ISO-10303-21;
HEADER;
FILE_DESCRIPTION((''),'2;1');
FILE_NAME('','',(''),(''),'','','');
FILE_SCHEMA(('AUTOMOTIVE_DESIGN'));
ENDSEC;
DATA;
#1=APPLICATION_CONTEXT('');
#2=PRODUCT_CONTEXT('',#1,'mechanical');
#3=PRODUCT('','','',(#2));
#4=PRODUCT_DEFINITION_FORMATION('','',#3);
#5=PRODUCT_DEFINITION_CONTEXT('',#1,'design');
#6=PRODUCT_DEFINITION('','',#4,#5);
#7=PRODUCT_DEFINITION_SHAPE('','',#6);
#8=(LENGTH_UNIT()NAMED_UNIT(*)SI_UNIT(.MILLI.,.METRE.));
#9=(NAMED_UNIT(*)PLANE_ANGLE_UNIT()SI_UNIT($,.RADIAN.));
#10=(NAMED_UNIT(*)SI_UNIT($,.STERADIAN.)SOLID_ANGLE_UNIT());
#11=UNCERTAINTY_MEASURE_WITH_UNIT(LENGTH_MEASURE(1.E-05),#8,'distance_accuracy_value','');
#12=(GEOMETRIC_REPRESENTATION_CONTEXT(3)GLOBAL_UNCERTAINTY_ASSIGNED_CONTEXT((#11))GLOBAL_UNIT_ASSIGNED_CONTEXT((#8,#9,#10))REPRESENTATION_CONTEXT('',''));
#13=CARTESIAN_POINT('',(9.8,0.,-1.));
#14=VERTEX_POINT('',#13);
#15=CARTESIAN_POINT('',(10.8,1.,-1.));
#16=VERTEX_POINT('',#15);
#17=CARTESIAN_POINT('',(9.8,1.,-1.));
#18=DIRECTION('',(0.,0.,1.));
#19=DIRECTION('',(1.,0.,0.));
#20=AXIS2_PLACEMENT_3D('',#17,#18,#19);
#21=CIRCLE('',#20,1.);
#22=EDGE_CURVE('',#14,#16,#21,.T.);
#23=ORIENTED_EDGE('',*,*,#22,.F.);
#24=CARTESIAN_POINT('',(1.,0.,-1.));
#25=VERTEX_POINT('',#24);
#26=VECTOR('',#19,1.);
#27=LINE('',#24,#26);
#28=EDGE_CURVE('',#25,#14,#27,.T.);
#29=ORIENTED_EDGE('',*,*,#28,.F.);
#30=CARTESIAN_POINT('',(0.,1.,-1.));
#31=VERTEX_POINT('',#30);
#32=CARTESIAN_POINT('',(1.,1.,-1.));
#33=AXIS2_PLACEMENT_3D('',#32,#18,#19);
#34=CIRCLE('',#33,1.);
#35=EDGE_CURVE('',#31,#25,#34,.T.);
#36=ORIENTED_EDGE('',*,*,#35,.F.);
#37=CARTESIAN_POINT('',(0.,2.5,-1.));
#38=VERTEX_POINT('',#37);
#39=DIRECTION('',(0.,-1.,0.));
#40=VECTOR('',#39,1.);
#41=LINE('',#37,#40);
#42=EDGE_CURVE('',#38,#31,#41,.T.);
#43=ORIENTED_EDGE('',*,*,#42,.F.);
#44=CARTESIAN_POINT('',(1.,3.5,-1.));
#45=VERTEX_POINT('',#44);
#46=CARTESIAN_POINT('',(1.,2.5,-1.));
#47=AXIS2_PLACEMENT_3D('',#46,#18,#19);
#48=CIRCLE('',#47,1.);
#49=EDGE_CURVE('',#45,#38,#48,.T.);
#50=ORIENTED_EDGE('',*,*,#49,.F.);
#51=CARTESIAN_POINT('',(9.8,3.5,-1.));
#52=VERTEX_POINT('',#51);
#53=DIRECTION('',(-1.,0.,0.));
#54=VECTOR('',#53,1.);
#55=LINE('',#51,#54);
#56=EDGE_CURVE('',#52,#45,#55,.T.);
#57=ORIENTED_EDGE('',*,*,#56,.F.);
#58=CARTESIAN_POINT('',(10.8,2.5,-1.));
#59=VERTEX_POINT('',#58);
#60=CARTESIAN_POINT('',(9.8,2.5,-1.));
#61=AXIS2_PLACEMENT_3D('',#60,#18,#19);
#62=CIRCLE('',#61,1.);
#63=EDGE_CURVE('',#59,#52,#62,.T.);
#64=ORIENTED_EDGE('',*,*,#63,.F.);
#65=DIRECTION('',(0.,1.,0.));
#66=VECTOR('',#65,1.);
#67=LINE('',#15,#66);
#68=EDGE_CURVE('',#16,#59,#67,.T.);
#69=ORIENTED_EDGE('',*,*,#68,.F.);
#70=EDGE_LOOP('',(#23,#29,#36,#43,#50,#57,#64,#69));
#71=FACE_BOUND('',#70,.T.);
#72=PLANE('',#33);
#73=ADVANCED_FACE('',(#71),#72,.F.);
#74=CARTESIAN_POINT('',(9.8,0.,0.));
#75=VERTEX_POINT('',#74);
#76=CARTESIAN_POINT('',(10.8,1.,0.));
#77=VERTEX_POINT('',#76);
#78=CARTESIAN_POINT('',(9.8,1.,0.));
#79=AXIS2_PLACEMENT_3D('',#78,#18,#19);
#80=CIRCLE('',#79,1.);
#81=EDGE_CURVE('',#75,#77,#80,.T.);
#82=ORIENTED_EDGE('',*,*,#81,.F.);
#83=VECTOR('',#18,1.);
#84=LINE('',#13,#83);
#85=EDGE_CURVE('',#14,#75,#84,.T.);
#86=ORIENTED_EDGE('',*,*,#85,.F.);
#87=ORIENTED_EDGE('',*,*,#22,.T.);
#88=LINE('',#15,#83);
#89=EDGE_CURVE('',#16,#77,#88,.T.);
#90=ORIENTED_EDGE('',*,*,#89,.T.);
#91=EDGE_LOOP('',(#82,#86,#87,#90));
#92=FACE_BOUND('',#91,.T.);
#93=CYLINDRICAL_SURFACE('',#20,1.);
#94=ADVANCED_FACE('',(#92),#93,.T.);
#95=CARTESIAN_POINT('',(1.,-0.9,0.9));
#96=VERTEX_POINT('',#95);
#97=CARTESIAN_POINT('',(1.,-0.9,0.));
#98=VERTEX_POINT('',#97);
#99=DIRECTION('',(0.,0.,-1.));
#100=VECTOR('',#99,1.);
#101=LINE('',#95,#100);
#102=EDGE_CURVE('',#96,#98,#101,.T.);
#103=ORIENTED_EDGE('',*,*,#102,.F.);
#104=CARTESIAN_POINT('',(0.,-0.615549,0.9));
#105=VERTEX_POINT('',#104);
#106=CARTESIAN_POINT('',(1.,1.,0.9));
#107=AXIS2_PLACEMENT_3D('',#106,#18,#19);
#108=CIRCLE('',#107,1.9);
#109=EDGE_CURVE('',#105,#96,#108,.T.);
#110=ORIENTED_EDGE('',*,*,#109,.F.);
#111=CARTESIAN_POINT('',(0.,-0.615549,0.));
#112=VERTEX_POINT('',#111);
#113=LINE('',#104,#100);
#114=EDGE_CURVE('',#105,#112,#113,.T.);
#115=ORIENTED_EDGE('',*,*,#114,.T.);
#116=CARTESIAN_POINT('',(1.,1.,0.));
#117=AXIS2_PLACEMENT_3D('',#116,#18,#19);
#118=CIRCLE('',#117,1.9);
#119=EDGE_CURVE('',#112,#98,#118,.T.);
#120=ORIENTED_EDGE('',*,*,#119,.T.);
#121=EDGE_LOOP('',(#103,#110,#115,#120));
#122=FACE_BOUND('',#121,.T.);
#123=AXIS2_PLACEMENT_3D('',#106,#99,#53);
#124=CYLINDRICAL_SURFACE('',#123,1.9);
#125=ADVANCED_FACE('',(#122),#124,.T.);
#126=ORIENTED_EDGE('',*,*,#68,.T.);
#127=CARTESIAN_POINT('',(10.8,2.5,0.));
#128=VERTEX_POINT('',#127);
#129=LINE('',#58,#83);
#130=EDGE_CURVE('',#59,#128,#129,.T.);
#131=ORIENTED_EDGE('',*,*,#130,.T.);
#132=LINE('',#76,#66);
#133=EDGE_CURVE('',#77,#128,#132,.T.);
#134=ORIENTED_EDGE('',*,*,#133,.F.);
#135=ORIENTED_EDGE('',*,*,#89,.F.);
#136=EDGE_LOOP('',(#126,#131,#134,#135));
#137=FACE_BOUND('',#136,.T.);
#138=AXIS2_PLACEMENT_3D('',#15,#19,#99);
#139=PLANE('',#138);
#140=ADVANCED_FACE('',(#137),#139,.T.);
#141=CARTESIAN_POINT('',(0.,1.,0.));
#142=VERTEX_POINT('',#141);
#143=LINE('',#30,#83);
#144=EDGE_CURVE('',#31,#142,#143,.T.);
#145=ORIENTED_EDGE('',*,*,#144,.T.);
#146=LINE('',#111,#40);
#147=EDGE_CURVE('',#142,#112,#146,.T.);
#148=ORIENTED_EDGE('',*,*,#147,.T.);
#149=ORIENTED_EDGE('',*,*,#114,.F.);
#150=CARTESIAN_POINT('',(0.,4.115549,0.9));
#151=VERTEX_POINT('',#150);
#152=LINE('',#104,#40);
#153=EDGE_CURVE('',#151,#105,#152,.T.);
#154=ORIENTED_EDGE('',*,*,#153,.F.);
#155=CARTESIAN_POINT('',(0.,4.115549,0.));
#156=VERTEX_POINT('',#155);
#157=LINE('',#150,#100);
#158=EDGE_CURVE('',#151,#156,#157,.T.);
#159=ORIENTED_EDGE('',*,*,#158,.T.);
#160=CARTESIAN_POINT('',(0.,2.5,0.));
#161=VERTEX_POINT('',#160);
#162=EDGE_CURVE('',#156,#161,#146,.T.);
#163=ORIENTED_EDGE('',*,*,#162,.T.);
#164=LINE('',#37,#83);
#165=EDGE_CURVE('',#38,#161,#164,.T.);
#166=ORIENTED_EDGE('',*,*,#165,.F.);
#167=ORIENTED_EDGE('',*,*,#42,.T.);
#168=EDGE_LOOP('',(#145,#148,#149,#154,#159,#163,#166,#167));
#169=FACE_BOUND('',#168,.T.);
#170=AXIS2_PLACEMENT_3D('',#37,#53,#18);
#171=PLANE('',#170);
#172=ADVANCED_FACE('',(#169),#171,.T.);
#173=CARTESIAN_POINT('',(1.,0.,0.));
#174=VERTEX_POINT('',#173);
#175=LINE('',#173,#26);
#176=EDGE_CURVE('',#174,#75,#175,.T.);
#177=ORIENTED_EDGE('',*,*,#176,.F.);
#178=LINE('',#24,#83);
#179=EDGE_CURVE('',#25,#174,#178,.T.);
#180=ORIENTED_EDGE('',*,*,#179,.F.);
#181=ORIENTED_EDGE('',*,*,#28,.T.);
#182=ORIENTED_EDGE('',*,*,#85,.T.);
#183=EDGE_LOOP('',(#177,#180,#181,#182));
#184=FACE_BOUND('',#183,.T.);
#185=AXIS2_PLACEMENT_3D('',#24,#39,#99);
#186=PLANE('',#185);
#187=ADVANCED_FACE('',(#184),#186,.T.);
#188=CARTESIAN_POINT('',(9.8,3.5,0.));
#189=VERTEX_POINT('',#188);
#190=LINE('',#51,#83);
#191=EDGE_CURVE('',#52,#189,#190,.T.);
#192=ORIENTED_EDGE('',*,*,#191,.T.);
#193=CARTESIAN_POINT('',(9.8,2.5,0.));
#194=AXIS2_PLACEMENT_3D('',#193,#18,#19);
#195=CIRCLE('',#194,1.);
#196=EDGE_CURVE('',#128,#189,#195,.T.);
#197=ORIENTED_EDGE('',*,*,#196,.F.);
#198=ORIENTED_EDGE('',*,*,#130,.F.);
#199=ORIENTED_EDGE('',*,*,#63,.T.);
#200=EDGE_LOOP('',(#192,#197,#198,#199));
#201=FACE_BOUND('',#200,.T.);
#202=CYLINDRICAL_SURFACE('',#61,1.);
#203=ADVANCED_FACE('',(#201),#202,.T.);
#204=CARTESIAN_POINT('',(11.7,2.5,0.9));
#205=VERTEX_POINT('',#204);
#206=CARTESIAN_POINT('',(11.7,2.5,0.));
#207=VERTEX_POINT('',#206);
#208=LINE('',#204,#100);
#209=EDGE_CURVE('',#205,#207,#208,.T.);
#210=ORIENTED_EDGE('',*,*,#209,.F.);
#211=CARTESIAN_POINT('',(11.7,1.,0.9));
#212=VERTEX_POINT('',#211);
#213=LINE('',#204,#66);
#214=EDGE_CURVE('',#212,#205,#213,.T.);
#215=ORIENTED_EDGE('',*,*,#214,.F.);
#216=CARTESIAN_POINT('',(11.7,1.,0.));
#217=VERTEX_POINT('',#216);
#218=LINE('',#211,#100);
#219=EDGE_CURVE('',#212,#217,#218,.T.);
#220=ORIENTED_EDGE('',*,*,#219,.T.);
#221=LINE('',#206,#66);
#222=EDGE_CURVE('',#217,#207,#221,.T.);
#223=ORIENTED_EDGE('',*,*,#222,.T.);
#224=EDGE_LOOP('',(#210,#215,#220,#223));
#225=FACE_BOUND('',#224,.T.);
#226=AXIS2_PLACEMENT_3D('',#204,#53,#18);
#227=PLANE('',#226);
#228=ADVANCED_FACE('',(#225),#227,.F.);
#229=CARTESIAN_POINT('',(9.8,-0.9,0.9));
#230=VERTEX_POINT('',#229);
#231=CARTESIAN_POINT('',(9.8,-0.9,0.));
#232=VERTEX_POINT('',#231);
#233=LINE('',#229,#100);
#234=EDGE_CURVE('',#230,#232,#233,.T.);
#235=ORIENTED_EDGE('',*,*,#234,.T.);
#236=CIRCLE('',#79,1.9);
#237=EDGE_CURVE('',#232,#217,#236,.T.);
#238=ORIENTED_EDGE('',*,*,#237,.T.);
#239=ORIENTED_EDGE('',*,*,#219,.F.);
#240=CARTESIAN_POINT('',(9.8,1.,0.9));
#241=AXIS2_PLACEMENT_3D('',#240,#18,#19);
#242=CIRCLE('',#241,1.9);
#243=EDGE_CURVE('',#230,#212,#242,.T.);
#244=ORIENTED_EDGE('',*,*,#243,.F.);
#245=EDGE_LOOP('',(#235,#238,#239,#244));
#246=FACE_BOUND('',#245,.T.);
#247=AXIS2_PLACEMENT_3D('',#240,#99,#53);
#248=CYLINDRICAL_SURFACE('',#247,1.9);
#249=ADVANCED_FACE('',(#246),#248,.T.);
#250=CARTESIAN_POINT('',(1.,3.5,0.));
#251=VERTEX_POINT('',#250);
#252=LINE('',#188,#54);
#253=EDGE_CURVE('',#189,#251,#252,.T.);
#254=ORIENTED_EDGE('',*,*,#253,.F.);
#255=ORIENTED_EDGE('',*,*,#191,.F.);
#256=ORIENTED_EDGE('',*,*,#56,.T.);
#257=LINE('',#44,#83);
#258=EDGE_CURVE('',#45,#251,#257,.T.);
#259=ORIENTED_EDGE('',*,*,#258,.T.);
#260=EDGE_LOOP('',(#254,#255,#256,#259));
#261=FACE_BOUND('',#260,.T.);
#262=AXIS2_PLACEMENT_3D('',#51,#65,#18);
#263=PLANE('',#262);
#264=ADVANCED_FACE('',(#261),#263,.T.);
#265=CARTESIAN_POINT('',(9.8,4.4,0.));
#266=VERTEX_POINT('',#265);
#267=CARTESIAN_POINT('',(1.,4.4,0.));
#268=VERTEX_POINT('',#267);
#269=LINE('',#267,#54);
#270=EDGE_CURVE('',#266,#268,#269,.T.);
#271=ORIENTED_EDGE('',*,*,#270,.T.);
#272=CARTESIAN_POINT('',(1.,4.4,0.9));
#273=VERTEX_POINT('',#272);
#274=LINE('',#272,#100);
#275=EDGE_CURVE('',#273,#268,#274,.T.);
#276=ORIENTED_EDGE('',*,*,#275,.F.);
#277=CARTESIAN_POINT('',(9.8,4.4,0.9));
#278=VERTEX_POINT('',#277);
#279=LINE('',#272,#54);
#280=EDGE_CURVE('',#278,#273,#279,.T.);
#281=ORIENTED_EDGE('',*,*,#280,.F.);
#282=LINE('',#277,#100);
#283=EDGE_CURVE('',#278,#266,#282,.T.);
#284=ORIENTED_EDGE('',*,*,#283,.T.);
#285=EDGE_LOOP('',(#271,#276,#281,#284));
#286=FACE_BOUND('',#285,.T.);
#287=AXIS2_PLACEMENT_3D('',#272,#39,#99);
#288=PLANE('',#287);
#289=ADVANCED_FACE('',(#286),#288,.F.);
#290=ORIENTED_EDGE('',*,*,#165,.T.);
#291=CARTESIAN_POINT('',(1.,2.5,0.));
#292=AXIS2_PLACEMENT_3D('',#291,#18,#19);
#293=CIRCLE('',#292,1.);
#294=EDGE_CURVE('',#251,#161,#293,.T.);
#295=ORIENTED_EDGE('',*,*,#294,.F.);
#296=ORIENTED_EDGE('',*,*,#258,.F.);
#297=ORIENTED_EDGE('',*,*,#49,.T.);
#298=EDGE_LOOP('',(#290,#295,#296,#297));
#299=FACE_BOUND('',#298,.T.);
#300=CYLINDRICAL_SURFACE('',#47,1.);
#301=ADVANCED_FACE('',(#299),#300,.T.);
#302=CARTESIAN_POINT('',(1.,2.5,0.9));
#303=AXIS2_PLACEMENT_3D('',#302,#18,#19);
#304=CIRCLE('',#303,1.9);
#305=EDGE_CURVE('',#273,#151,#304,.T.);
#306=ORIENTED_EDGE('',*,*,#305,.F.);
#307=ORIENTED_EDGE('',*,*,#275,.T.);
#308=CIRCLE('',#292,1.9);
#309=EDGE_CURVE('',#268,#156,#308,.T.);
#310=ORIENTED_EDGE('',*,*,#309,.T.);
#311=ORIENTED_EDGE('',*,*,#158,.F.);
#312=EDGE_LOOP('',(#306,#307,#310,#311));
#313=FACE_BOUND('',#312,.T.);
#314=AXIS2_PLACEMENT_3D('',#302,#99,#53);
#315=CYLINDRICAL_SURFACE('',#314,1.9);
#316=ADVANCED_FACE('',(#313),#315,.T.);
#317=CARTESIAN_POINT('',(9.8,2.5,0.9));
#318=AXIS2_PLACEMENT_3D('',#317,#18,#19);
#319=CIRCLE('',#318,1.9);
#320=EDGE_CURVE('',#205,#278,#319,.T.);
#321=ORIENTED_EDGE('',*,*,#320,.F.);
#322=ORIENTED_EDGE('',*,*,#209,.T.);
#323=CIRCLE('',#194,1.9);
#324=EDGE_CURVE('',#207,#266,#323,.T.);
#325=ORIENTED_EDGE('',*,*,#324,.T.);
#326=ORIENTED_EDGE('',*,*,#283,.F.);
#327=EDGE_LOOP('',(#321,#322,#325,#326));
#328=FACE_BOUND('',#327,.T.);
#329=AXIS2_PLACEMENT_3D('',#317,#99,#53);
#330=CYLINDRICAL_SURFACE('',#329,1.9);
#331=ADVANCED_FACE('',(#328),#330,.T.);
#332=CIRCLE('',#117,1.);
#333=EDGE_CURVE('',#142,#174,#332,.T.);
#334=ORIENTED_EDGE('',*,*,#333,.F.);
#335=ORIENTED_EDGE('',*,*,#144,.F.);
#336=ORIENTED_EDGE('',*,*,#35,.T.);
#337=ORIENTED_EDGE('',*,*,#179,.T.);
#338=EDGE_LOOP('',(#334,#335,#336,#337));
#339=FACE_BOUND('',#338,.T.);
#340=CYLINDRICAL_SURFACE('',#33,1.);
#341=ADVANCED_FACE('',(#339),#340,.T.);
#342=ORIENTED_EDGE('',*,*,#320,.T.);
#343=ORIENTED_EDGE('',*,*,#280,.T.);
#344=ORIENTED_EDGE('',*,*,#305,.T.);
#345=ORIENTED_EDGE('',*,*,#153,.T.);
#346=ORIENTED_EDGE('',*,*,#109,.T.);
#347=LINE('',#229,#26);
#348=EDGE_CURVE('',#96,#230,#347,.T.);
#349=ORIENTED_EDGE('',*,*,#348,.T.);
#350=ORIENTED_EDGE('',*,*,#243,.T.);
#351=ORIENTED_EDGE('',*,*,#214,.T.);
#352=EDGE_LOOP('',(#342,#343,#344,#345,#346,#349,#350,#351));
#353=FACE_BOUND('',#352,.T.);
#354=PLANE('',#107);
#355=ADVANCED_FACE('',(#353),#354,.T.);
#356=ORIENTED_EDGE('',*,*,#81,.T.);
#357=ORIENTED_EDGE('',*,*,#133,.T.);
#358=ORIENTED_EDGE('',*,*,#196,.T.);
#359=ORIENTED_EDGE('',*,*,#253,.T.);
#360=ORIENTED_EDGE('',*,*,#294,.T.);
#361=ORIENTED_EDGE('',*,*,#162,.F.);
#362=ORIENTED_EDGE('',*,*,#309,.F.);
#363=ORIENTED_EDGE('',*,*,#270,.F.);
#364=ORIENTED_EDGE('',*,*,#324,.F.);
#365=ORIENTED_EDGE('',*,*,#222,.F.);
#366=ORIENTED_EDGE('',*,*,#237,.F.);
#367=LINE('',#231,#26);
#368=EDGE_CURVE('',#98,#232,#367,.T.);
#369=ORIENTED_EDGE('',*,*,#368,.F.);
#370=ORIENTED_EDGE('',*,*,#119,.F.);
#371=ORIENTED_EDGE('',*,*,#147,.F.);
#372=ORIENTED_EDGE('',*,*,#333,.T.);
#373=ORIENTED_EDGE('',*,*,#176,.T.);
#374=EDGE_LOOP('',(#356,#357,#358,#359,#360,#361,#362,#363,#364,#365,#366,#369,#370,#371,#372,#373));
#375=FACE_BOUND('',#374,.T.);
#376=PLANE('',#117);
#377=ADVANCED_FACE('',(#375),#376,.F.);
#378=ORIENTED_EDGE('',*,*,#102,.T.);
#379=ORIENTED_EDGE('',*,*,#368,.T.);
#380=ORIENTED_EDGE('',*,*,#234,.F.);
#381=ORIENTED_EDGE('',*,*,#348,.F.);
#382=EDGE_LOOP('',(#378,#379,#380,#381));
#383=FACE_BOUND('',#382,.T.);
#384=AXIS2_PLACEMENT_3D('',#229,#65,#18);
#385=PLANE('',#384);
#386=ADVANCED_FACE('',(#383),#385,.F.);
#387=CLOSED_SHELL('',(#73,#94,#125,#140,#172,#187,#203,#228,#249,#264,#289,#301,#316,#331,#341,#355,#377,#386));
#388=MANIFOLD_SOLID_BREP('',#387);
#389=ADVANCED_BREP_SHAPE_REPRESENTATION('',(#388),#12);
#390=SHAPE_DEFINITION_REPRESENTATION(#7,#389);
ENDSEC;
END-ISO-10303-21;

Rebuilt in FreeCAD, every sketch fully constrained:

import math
import FreeCAD as App
import Part
import Sketcher
from FreeCAD import Vector
Q = App.Units.Quantity

doc = App.newDocument("Part")
body = doc.addObject("PartDesign::Body", "Body")

# Sketch on XY plane
sketch1 = body.newObject("Sketcher::SketchObject", "Sketch")
sketch1.AttachmentSupport = (doc.getObject("XY_Plane"), [""])
sketch1.MapMode = "FlatFace"
sketch1.addGeometry(Part.LineSegment(Vector(1, 0, 0), Vector(9.8, 0, 0)), False)
sketch1.addGeometry(Part.ArcOfCircle(Part.Circle(Vector(9.8, 1, 0), Vector(0, 0, 1), 1), math.radians(-90), math.radians(0)), False)
sketch1.addGeometry(Part.LineSegment(Vector(10.8, 1, 0), Vector(10.8, 2.5, 0)), False)
sketch1.addGeometry(Part.ArcOfCircle(Part.Circle(Vector(9.8, 2.5, 0), Vector(0, 0, 1), 1), math.radians(0), math.radians(90)), False)
sketch1.addGeometry(Part.LineSegment(Vector(9.8, 3.5, 0), Vector(1, 3.5, 0)), False)
sketch1.addGeometry(Part.ArcOfCircle(Part.Circle(Vector(1, 2.5, 0), Vector(0, 0, 1), 1), math.radians(90), math.radians(180)), False)
sketch1.addGeometry(Part.LineSegment(Vector(0, 2.5, 0), Vector(0, 1, 0)), False)
sketch1.addGeometry(Part.ArcOfCircle(Part.Circle(Vector(1, 1, 0), Vector(0, 0, 1), 1), math.radians(-180), math.radians(-90)), False)
sketch1.addConstraint(Sketcher.Constraint("Tangent", 0, 2, 1, 1))
sketch1.addConstraint(Sketcher.Constraint("Tangent", 1, 2, 2, 1))
sketch1.addConstraint(Sketcher.Constraint("Tangent", 2, 2, 3, 1))
sketch1.addConstraint(Sketcher.Constraint("Tangent", 3, 2, 4, 1))
sketch1.addConstraint(Sketcher.Constraint("Tangent", 4, 2, 5, 1))
sketch1.addConstraint(Sketcher.Constraint("Tangent", 5, 2, 6, 1))
sketch1.addConstraint(Sketcher.Constraint("Tangent", 6, 2, 7, 1))
sketch1.addConstraint(Sketcher.Constraint("Tangent", 7, 2, 0, 1))
sketch1.addConstraint(Sketcher.Constraint("Horizontal", 0))
sketch1.addConstraint(Sketcher.Constraint("Vertical", 2))
sketch1.addConstraint(Sketcher.Constraint("Horizontal", 4))
sketch1.addConstraint(Sketcher.Constraint("Vertical", 6))
sketch1.addConstraint(Sketcher.Constraint("Equal", 1, 3))
sketch1.addConstraint(Sketcher.Constraint("Equal", 3, 5))
sketch1.addConstraint(Sketcher.Constraint("Equal", 5, 7))
sketch1.addConstraint(Sketcher.Constraint("PointOnObject", 0, 2, -1))
sketch1.addConstraint(Sketcher.Constraint("PointOnObject", 5, 2, -2))
sketch1.addConstraint(Sketcher.Constraint("Radius", 1, Q("1 mm")))
sketch1.addConstraint(Sketcher.Constraint("DistanceX", 0, 1, 0, 2, Q("8.8 mm")))
sketch1.addConstraint(Sketcher.Constraint("DistanceY", 2, 1, 2, 2, Q("1.5 mm")))
pad1 = body.newObject("PartDesign::Pad", "Pad")
pad1.Profile = sketch1
pad1.Length = 1
pad1.Reversed = True

# Sketch on XY plane
sketch2 = body.newObject("Sketcher::SketchObject", "Sketch001")
sketch2.AttachmentSupport = (doc.getObject("XY_Plane"), [""])
sketch2.MapMode = "FlatFace"
sketch2.addGeometry(Part.LineSegment(Vector(0, 4.1, 0), Vector(0, -0.6, 0)), False)
sketch2.addGeometry(Part.ArcOfCircle(Part.Circle(Vector(1, 1, 0), Vector(0, 0, 1), 1.9), math.radians(-122), math.radians(-90)), False)
sketch2.addGeometry(Part.LineSegment(Vector(1, -0.9, 0), Vector(9.8, -0.9, 0)), False)
sketch2.addGeometry(Part.ArcOfCircle(Part.Circle(Vector(9.8, 1, 0), Vector(0, 0, 1), 1.9), math.radians(-90), math.radians(0)), False)
sketch2.addGeometry(Part.LineSegment(Vector(11.7, 1, 0), Vector(11.7, 2.5, 0)), False)
sketch2.addGeometry(Part.ArcOfCircle(Part.Circle(Vector(9.8, 2.5, 0), Vector(0, 0, 1), 1.9), math.radians(0), math.radians(90)), False)
sketch2.addGeometry(Part.LineSegment(Vector(9.8, 4.4, 0), Vector(1, 4.4, 0)), False)
sketch2.addGeometry(Part.ArcOfCircle(Part.Circle(Vector(1, 2.5, 0), Vector(0, 0, 1), 1.9), math.radians(90), math.radians(122)), False)
sketch2.addConstraint(Sketcher.Constraint("Coincident", 0, 2, 1, 1))
sketch2.addConstraint(Sketcher.Constraint("Tangent", 1, 2, 2, 1))
sketch2.addConstraint(Sketcher.Constraint("Tangent", 2, 2, 3, 1))
sketch2.addConstraint(Sketcher.Constraint("Tangent", 3, 2, 4, 1))
sketch2.addConstraint(Sketcher.Constraint("Tangent", 4, 2, 5, 1))
sketch2.addConstraint(Sketcher.Constraint("Tangent", 5, 2, 6, 1))
sketch2.addConstraint(Sketcher.Constraint("Tangent", 6, 2, 7, 1))
sketch2.addConstraint(Sketcher.Constraint("Coincident", 7, 2, 0, 1))
sketch2.addConstraint(Sketcher.Constraint("Vertical", 0))
sketch2.addConstraint(Sketcher.Constraint("Horizontal", 2))
sketch2.addConstraint(Sketcher.Constraint("Vertical", 4))
sketch2.addConstraint(Sketcher.Constraint("Horizontal", 6))
sketch2.addConstraint(Sketcher.Constraint("Equal", 1, 3))
sketch2.addConstraint(Sketcher.Constraint("Equal", 3, 5))
sketch2.addConstraint(Sketcher.Constraint("Equal", 5, 7))
sketch2.addConstraint(Sketcher.Constraint("PointOnObject", 0, 2, -2))
sketch2.addConstraint(Sketcher.Constraint("Vertical", 1, 3, 7, 3))
sketch2.addConstraint(Sketcher.Constraint("Radius", 1, Q("1.9 mm")))
sketch2.addConstraint(Sketcher.Constraint("DistanceX", 2, 1, 2, 2, Q("8.8 mm")))
sketch2.addConstraint(Sketcher.Constraint("DistanceY", 4, 1, 4, 2, Q("1.5 mm")))
sketch2.addConstraint(Sketcher.Constraint("DistanceX", -1, 1, 1, 3, Q("1 mm")))
sketch2.addConstraint(Sketcher.Constraint("DistanceY", -1, 1, 1, 3, Q("1 mm")))
pad2 = body.newObject("PartDesign::Pad", "Pad001")
pad2.Profile = sketch2
pad2.Length = 0.9

doc.recompute()
